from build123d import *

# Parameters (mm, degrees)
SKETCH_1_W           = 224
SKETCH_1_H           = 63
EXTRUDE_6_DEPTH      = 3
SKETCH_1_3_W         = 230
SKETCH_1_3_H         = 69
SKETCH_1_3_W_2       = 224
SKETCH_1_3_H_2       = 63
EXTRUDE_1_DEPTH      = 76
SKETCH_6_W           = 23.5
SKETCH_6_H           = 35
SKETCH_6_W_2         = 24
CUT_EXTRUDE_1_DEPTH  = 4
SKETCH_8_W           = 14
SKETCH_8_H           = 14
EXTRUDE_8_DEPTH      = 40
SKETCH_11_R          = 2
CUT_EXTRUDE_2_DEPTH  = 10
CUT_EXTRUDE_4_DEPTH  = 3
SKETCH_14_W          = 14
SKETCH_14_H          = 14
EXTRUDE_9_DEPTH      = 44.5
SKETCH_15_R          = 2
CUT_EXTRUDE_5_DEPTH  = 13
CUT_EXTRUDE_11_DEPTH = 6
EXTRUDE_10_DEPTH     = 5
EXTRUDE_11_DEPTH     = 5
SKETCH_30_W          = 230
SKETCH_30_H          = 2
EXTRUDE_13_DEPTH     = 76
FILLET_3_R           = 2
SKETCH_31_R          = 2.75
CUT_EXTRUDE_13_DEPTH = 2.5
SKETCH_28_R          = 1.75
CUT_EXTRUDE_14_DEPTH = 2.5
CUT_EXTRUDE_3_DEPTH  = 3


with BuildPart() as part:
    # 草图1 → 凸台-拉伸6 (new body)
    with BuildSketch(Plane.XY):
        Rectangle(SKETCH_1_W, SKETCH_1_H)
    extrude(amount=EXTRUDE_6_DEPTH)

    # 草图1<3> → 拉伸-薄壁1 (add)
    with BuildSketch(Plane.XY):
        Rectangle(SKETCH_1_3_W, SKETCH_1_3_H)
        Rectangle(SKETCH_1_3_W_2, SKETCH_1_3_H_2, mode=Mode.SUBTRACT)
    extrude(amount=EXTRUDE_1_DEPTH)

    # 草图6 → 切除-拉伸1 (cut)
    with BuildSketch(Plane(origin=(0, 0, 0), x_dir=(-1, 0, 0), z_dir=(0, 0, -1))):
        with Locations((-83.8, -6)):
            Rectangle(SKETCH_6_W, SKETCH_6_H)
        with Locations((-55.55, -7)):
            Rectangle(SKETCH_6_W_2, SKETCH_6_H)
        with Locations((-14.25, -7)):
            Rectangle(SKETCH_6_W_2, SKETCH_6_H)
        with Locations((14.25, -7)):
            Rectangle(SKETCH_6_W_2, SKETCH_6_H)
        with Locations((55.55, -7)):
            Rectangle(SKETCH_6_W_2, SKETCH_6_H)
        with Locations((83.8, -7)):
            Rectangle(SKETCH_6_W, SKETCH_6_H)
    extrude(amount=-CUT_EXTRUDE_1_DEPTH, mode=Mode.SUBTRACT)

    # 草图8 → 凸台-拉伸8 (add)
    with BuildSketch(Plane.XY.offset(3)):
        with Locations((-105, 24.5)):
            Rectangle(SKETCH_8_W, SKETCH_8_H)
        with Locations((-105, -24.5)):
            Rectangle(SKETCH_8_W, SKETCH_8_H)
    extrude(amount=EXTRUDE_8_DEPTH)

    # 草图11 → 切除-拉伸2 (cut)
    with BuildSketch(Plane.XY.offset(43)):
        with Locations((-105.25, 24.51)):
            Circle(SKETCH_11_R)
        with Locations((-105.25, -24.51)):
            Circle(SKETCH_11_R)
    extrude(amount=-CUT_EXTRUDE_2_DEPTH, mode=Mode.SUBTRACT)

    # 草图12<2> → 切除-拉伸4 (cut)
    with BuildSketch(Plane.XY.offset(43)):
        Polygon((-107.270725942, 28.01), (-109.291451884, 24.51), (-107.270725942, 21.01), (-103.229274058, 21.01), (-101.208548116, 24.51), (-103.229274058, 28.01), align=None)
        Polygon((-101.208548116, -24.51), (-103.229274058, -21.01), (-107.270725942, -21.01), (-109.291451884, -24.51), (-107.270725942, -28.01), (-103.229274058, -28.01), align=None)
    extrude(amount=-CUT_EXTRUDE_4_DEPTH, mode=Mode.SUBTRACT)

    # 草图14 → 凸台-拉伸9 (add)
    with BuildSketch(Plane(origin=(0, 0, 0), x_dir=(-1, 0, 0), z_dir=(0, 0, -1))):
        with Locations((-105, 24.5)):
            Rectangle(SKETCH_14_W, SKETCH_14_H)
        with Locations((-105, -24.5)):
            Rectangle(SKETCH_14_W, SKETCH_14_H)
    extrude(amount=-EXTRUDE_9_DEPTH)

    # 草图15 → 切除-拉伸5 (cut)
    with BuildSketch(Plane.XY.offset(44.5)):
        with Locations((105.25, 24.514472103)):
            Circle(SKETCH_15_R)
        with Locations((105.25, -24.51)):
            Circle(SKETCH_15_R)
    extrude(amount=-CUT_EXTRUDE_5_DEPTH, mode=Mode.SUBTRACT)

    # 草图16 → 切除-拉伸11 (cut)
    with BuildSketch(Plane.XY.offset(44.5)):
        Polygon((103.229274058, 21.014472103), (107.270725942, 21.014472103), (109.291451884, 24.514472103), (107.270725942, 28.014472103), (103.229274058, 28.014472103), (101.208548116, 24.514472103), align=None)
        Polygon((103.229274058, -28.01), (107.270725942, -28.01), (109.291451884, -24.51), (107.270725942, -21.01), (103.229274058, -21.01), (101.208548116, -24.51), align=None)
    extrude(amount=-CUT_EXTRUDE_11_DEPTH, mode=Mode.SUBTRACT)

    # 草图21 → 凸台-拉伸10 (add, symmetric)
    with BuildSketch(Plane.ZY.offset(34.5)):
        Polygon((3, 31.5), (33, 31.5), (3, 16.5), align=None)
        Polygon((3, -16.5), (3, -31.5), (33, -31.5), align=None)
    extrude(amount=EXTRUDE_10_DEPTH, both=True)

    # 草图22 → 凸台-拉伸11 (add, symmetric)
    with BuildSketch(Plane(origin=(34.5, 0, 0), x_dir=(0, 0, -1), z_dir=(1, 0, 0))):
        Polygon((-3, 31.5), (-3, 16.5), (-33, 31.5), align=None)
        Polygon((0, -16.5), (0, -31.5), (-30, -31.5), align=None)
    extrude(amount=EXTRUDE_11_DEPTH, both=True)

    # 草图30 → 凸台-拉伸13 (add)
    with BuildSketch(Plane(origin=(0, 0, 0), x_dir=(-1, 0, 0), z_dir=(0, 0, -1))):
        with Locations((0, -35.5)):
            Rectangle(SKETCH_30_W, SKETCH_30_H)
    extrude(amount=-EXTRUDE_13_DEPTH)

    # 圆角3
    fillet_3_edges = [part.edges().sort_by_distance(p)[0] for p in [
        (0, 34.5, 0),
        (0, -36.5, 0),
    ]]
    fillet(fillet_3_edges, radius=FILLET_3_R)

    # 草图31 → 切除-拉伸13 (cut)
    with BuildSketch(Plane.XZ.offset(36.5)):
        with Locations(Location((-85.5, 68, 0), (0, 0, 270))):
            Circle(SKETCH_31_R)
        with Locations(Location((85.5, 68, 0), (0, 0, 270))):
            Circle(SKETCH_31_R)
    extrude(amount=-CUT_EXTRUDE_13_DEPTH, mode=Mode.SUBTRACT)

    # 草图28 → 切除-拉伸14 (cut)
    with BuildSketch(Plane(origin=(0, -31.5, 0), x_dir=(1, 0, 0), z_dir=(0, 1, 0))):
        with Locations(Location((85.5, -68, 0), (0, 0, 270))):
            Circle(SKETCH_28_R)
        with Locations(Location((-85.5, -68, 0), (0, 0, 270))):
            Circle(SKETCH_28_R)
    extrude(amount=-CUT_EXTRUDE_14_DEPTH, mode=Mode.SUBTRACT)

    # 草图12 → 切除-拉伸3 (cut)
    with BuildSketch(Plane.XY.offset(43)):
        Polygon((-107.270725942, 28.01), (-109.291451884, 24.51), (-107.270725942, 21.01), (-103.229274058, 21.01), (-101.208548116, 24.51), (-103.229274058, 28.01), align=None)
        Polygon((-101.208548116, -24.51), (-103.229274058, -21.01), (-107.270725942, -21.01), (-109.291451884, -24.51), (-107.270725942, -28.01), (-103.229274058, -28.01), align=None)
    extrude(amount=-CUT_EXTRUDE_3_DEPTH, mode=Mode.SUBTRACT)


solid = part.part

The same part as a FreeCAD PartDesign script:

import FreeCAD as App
import Part
import Sketcher
from FreeCAD import Vector
Q = App.Units.Quantity


def edges_at(feature, points):
    """Names of the edges that pass closest to the given points."""
    edges = feature.Shape.Edges
    near = lambda p: min(range(len(edges)), key=lambda i: edges[i].distToShape(Part.Vertex(*p))[0])
    return sorted({f"Edge{near(p) + 1}" for p in points})


def add_polygon(sketch, points):
    """Adds a closed chain of lines whose ends are joined by coincident constraints."""
    first, n = sketch.GeometryCount, len(points)
    for a, b in zip(points, points[1:] + points[:1]):
        sketch.addGeometry(Part.LineSegment(App.Vector(*a, 0), App.Vector(*b, 0)), False)
    for i in range(n):
        sketch.addConstraint(Sketcher.Constraint("Coincident", first + i, 2, first + (i + 1) % n, 1))

doc = App.newDocument("Part")
body = doc.addObject("PartDesign::Body", "Body")

# Sketch on XY plane
sketch1 = doc.addObject("Sketcher::SketchObject", "Sketch")
body.addObject(sketch1)
sketch1.AttachmentSupport = (doc.XY_Plane, [""])
sketch1.MapMode = "FlatFace"
add_polygon(sketch1, [(-112, 32), (-112, -32), (112, -32), (112, 32)])  # lines 0-3
sketch1.addConstraint(Sketcher.Constraint("Vertical", 0))
sketch1.addConstraint(Sketcher.Constraint("Horizontal", 1))
sketch1.addConstraint(Sketcher.Constraint("Vertical", 2))
sketch1.addConstraint(Sketcher.Constraint("Horizontal", 3))
sketch1.addConstraint(Sketcher.Constraint("Symmetric", 0, 2, 2, 2, -1, 1))
sketch1.addConstraint(Sketcher.Constraint("DistanceX", 1, 1, 1, 2, 224.0))
sketch1.addConstraint(Sketcher.Constraint("DistanceY", 0, 2, 0, 1, 63.0))
pad1 = doc.addObject("PartDesign::Pad", "Pad")
body.addObject(pad1)
pad1.Profile = sketch1
pad1.Length = 3

# Sketch on XY plane
sketch2 = doc.addObject("Sketcher::SketchObject", "Sketch001")
body.addObject(sketch2)
sketch2.AttachmentSupport = (doc.XY_Plane, [""])
sketch2.MapMode = "FlatFace"
add_polygon(sketch2, [(-115, 34), (-115, -34), (115, -34), (115, 34)])  # lines 0-3
add_polygon(sketch2, [(112, -32), (-112, -32), (-112, 32), (112, 32)])  # lines 4-7
sketch2.addConstraint(Sketcher.Constraint("Vertical", 0))
sketch2.addConstraint(Sketcher.Constraint("Horizontal", 1))
sketch2.addConstraint(Sketcher.Constraint("Vertical", 2))
sketch2.addConstraint(Sketcher.Constraint("Horizontal", 3))
sketch2.addConstraint(Sketcher.Constraint("Horizontal", 4))
sketch2.addConstraint(Sketcher.Constraint("Vertical", 5))
sketch2.addConstraint(Sketcher.Constraint("Horizontal", 6))
sketch2.addConstraint(Sketcher.Constraint("Vertical", 7))
sketch2.addConstraint(Sketcher.Constraint("Symmetric", 0, 2, 2, 2, -1, 1))
sketch2.addConstraint(Sketcher.Constraint("Symmetric", 4, 2, 6, 2, -1, 1))
sketch2.addConstraint(Sketcher.Constraint("DistanceX", 1, 1, 1, 2, 230.0))
sketch2.addConstraint(Sketcher.Constraint("DistanceX", 4, 2, 4, 1, 224.0))
sketch2.addConstraint(Sketcher.Constraint("DistanceY", 0, 2, 0, 1, 69.0))
sketch2.addConstraint(Sketcher.Constraint("DistanceY", 5, 1, 5, 2, 63.0))
pad2 = doc.addObject("PartDesign::Pad", "Pad001")
body.addObject(pad2)
pad2.Profile = sketch2
pad2.Length = 76

# Sketch on XY plane
sketch3 = doc.addObject("Sketcher::SketchObject", "Sketch002")
body.addObject(sketch3)
sketch3.AttachmentSupport = (doc.XY_Plane, [""])
sketch3.MapMode = "FlatFace"
add_polygon(sketch3, [(96, 12), (96, -24), (72, -24), (72, 12)])  # lines 0-3
add_polygon(sketch3, [(68, 10), (68, -24), (44, -24), (44, 10)])  # lines 4-7
add_polygon(sketch3, [(26, 10), (26, -24), (2, -24), (2, 10)])  # lines 8-11
add_polygon(sketch3, [(-2, 10), (-2, -24), (-26, -24), (-26, 10)])  # lines 12-15
add_polygon(sketch3, [(-44, 10), (-44, -24), (-68, -24), (-68, 10)])  # lines 16-19
add_polygon(sketch3, [(-72, 10), (-72, -24), (-96, -24), (-96, 10)])  # lines 20-23
sketch3.addConstraint(Sketcher.Constraint("Vertical", 0))
sketch3.addConstraint(Sketcher.Constraint("Horizontal", 1))
sketch3.addConstraint(Sketcher.Constraint("Vertical", 2))
sketch3.addConstraint(Sketcher.Constraint("Horizontal", 3))
sketch3.addConstraint(Sketcher.Constraint("Vertical", 4))
sketch3.addConstraint(Sketcher.Constraint("Horizontal", 5))
sketch3.addConstraint(Sketcher.Constraint("Vertical", 6))
sketch3.addConstraint(Sketcher.Constraint("Horizontal", 7))
sketch3.addConstraint(Sketcher.Constraint("Vertical", 8))
sketch3.addConstraint(Sketcher.Constraint("Horizontal", 9))
sketch3.addConstraint(Sketcher.Constraint("Vertical", 10))
sketch3.addConstraint(Sketcher.Constraint("Horizontal", 11))
sketch3.addConstraint(Sketcher.Constraint("Vertical", 12))
sketch3.addConstraint(Sketcher.Constraint("Horizontal", 13))
sketch3.addConstraint(Sketcher.Constraint("Vertical", 14))
sketch3.addConstraint(Sketcher.Constraint("Horizontal", 15))
sketch3.addConstraint(Sketcher.Constraint("Vertical", 16))
sketch3.addConstraint(Sketcher.Constraint("Horizontal", 17))
sketch3.addConstraint(Sketcher.Constraint("Vertical", 18))
sketch3.addConstraint(Sketcher.Constraint("Horizontal", 19))
sketch3.addConstraint(Sketcher.Constraint("Vertical", 20))
sketch3.addConstraint(Sketcher.Constraint("Horizontal", 21))
sketch3.addConstraint(Sketcher.Constraint("Vertical", 22))
sketch3.addConstraint(Sketcher.Constraint("Horizontal", 23))
sketch3.addConstraint(Sketcher.Constraint("Symmetric", 9, 2, 12, 2, -2))
sketch3.addConstraint(Sketcher.Constraint("Symmetric", 11, 2, 14, 2, -2))
sketch3.addConstraint(Sketcher.Constraint("Symmetric", 5, 2, 16, 2, -2))
sketch3.addConstraint(Sketcher.Constraint("Symmetric", 7, 2, 18, 2, -2))
sketch3.addConstraint(Sketcher.Constraint("Horizontal", 5, 2, 8, 2))
sketch3.addConstraint(Sketcher.Constraint("Horizontal", 7, 2, 10, 2))
sketch3.addConstraint(Sketcher.Constraint("Horizontal", 17, 2, 20, 2))
sketch3.addConstraint(Sketcher.Constraint("Horizontal", 19, 2, 22, 2))
sketch3.addConstraint(Sketcher.Constraint("Equal", 7, 9))
sketch3.addConstraint(Sketcher.Constraint("Equal", 3, 21))
sketch3.addConstraint(Sketcher.Constraint("Equal", 2, 4))
sketch3.addConstraint(Sketcher.Constraint("DistanceX", 5, 2, 5, 1, 24.0))
sketch3.addConstraint(Sketcher.Constraint("DistanceY", 0, 2, 0, 1, 35.0))
sketch3.addConstraint(Sketcher.Constraint("DistanceX", 1, 2, 1, 1, 23.5))
sketch3.addConstraint(Sketcher.Constraint("DistanceY", 4, 2, 1, 2, 1.0))
sketch3.addConstraint(Sketcher.Constraint("DistanceX", 4, 2, 0, 2, 28.0))
sketch3.addConstraint(Sketcher.Constraint("DistanceX", 21, 2, 17, 2, 28.0))
sketch3.addConstraint(Sketcher.Constraint("DistanceY", 0, 2, -1, 1, 23.5))
sketch3.addConstraint(Sketcher.Constraint("DistanceX", 8, 2, 5, 2, 17.3))
sketch3.addConstraint(Sketcher.Constraint("DistanceX", 12, 2, 9, 2, 4.5))
pocket1 = doc.addObject("PartDesign::Pocket", "Pocket")
body.addObject(pocket1)
pocket1.Profile = sketch3
pocket1.Length = 4
pocket1.Reversed = True

# Sketch on XY plane
sketch4 = doc.addObject("Sketcher::SketchObject", "Sketch003")
body.addObject(sketch4)
sketch4.AttachmentSupport = (doc.XY_Plane, [""])
sketch4.MapMode = "FlatFace"
sketch4.AttachmentOffset = App.Placement(Vector(0, 0, 3), App.Rotation())
add_polygon(sketch4, [(-112, 32), (-112, 18), (-98, 18), (-98, 32)])  # lines 0-3
add_polygon(sketch4, [(-112, -18), (-112, -32), (-98, -32), (-98, -18)])  # lines 4-7
sketch4.addConstraint(Sketcher.Constraint("Vertical", 0))
sketch4.addConstraint(Sketcher.Constraint("Horizontal", 1))
sketch4.addConstraint(Sketcher.Constraint("Vertical", 2))
sketch4.addConstraint(Sketcher.Constraint("Horizontal", 3))
sketch4.addConstraint(Sketcher.Constraint("Vertical", 4))
sketch4.addConstraint(Sketcher.Constraint("Horizontal", 5))
sketch4.addConstraint(Sketcher.Constraint("Vertical", 6))
sketch4.addConstraint(Sketcher.Constraint("Horizontal", 7))
sketch4.addConstraint(Sketcher.Constraint("Symmetric", 3, 2, 4, 2, -1))
sketch4.addConstraint(Sketcher.Constraint("Symmetric", 1, 2, 6, 2, -1))
sketch4.addConstraint(Sketcher.Constraint("Equal", 7, 0))
sketch4.addConstraint(Sketcher.Constraint("DistanceX", 1, 1, 1, 2, 14.0))
sketch4.addConstraint(Sketcher.Constraint("DistanceX", 0, 2, -1, 1, 112.0))
sketch4.addConstraint(Sketcher.Constraint("DistanceY", 4, 2, 0, 2, 49.0))
pad3 = doc.addObject("PartDesign::Pad", "Pad002")
body.addObject(pad3)
pad3.Profile = sketch4
pad3.Length = 40

# Sketch on XY plane
sketch5 = doc.addObject("Sketcher::SketchObject", "Sketch004")
body.addObject(sketch5)
sketch5.AttachmentSupport = (doc.XY_Plane, [""])
sketch5.MapMode = "FlatFace"
sketch5.AttachmentOffset = App.Placement(Vector(0, 0, 43), App.Rotation())
sketch5.addGeometry(Part.Circle(Vector(-105.2, 24.5, 0), Vector(0, 0, 1), 2), False)
sketch5.addGeometry(Part.Circle(Vector(-105.2, -24.5, 0), Vector(0, 0, 1), 2), False)
sketch5.addConstraint(Sketcher.Constraint("Equal", 0, 1))
sketch5.addConstraint(Sketcher.Constraint("Symmetric", 0, 3, 1, 3, -1))
sketch5.addConstraint(Sketcher.Constraint("Diameter", 0, 4.0))
sketch5.addConstraint(Sketcher.Constraint("DistanceX", 0, 3, -1, 1, 105.25))
sketch5.addConstraint(Sketcher.Constraint("DistanceY", -1, 1, 0, 3, 24.51))
pocket2 = doc.addObject("PartDesign::Pocket", "Pocket001")
body.addObject(pocket2)
pocket2.Profile = sketch5
pocket2.Length = 10

# Sketch on XY plane
sketch6 = doc.addObject("Sketcher::SketchObject", "Sketch005")
body.addObject(sketch6)
sketch6.AttachmentSupport = (doc.XY_Plane, [""])
sketch6.MapMode = "FlatFace"
sketch6.AttachmentOffset = App.Placement(Vector(0, 0, 43), App.Rotation())
add_polygon(sketch6, [(-107.3, 28), (-109.3, 24.5), (-107.3, 21), (-103.2, 21), (-101.2, 24.5), (-103.2, 28)])  # lines 0-5
add_polygon(sketch6, [(-101.2, -24.5), (-103.2, -21), (-107.3, -21), (-109.3, -24.5), (-107.3, -28), (-103.2, -28)])  # lines 6-11
sketch6.addConstraint(Sketcher.Constraint("Horizontal", 2))
sketch6.addConstraint(Sketcher.Constraint("Horizontal", 5))
sketch6.addConstraint(Sketcher.Constraint("Horizontal", 7))
sketch6.addConstraint(Sketcher.Constraint("Horizontal", 10))
sketch6.addConstraint(Sketcher.Constraint("Symmetric", 2, 2, 6, 2, -1))
sketch6.addConstraint(Sketcher.Constraint("Symmetric", 0, 2, 8, 2, -1))
sketch6.addConstraint(Sketcher.Constraint("Symmetric", 5, 2, 9, 2, -1))
sketch6.addConstraint(Sketcher.Constraint("Symmetric", 3, 2, 11, 2, -1))
sketch6.addConstraint(Sketcher.Constraint("Parallel", 0, 3))
sketch6.addConstraint(Sketcher.Constraint("Parallel", 1, 4))
sketch6.addConstraint(Sketcher.Constraint("Parallel", 4, 6))
sketch6.addConstraint(Sketcher.Constraint("Parallel", 3, 8))
sketch6.addConstraint(Sketcher.Constraint("Parallel", 8, 11))
sketch6.addConstraint(Sketcher.Constraint("Horizontal", 0, 2, 3, 2))
sketch6.addConstraint(Sketcher.Constraint("Vertical", 2, 2, 4, 2))
sketch6.addConstraint(Sketcher.Constraint("Angle", 0, Q("-120 deg")))
sketch6.addConstraint(Sketcher.Constraint("DistanceY", 2, 2, 4, 2, 7.0))
sketch6.addConstraint(Sketcher.Constraint("DistanceY", -1, 1, 0, 2, 24.51))
sketch6.addConstraint(Sketcher.Constraint("DistanceX", 2, 1, 2, 2, 4.041452))
sketch6.addConstraint(Sketcher.Constraint("DistanceX", 0, 2, -1, 1, 109.291452))
pocket3 = doc.addObject("PartDesign::Pocket", "Pocket002")
body.addObject(pocket3)
pocket3.Profile = sketch6
pocket3.Length = 3

# Sketch on XY plane
sketch7 = doc.addObject("Sketcher::SketchObject", "Sketch006")
body.addObject(sketch7)
sketch7.AttachmentSupport = (doc.XY_Plane, [""])
sketch7.MapMode = "FlatFace"
add_polygon(sketch7, [(112, 32), (112, 18), (98, 18), (98, 32)])  # lines 0-3
add_polygon(sketch7, [(112, -18), (112, -32), (98, -32), (98, -18)])  # lines 4-7
sketch7.addConstraint(Sketcher.Constraint("Vertical", 0))
sketch7.addConstraint(Sketcher.Constraint("Horizontal", 1))
sketch7.addConstraint(Sketcher.Constraint("Vertical", 2))
sketch7.addConstraint(Sketcher.Constraint("Horizontal", 3))
sketch7.addConstraint(Sketcher.Constraint("Vertical", 4))
sketch7.addConstraint(Sketcher.Constraint("Horizontal", 5))
sketch7.addConstraint(Sketcher.Constraint("Vertical", 6))
sketch7.addConstraint(Sketcher.Constraint("Horizontal", 7))
sketch7.addConstraint(Sketcher.Constraint("Symmetric", 3, 2, 4, 2, -1))
sketch7.addConstraint(Sketcher.Constraint("Symmetric", 1, 2, 6, 2, -1))
sketch7.addConstraint(Sketcher.Constraint("Equal", 7, 0))
sketch7.addConstraint(Sketcher.Constraint("DistanceX", 1, 2, 1, 1, 14.0))
sketch7.addConstraint(Sketcher.Constraint("DistanceX", -1, 1, 0, 2, 112.0))
sketch7.addConstraint(Sketcher.Constraint("DistanceY", 4, 2, 0, 2, 49.0))
pad4 = doc.addObject("PartDesign::Pad", "Pad003")
body.addObject(pad4)
pad4.Profile = sketch7
pad4.Length = 44.5

# Sketch on XY plane
sketch8 = doc.addObject("Sketcher::SketchObject", "Sketch007")
body.addObject(sketch8)
sketch8.AttachmentSupport = (doc.XY_Plane, [""])
sketch8.MapMode = "FlatFace"
sketch8.AttachmentOffset = App.Placement(Vector(0, 0, 44.5), App.Rotation())
sketch8.addGeometry(Part.Circle(Vector(105.2, 24.5, 0), Vector(0, 0, 1), 2), False)
sketch8.addGeometry(Part.Circle(Vector(105.2, -24.5, 0), Vector(0, 0, 1), 2), False)
sketch8.addConstraint(Sketcher.Constraint("Equal", 0, 1))
sketch8.addConstraint(Sketcher.Constraint("Vertical", 0, 3, 1, 3))
sketch8.addConstraint(Sketcher.Constraint("Diameter", 0, 4.0))
sketch8.addConstraint(Sketcher.Constraint("DistanceX", -1, 1, 0, 3, 105.25))
sketch8.addConstraint(Sketcher.Constraint("DistanceY", 1, 3, -1, 1, 24.51))
sketch8.addConstraint(Sketcher.Constraint("DistanceY", -1, 1, 0, 3, 24.514472))
pocket4 = doc.addObject("PartDesign::Pocket", "Pocket003")
body.addObject(pocket4)
pocket4.Profile = sketch8
pocket4.Length = 13

# Sketch on XY plane
sketch9 = doc.addObject("Sketcher::SketchObject", "Sketch008")
body.addObject(sketch9)
sketch9.AttachmentSupport = (doc.XY_Plane, [""])
sketch9.MapMode = "FlatFace"
sketch9.AttachmentOffset = App.Placement(Vector(0, 0, 44.5), App.Rotation())
add_polygon(sketch9, [(103.2, 21), (107.3, 21), (109.3, 24.5), (107.3, 28), (103.2, 28), (101.2, 24.5)])  # lines 0-5
add_polygon(sketch9, [(103.2, -28), (107.3, -28), (109.3, -24.5), (107.3, -21), (103.2, -21), (101.2, -24.5)])  # lines 6-11
sketch9.addConstraint(Sketcher.Constraint("Horizontal", 0))
sketch9.addConstraint(Sketcher.Constraint("Horizontal", 3))
sketch9.addConstraint(Sketcher.Constraint("Horizontal", 6))
sketch9.addConstraint(Sketcher.Constraint("Horizontal", 9))
sketch9.addConstraint(Sketcher.Constraint("Parallel", 1, 4))
sketch9.addConstraint(Sketcher.Constraint("Parallel", 2, 5))
sketch9.addConstraint(Sketcher.Constraint("Parallel", 4, 7))
sketch9.addConstraint(Sketcher.Constraint("Parallel", 5, 8))
sketch9.addConstraint(Sketcher.Constraint("Parallel", 7, 10))
sketch9.addConstraint(Sketcher.Constraint("Parallel", 8, 11))
sketch9.addConstraint(Sketcher.Constraint("Horizontal", 1, 2, 4, 2))
sketch9.addConstraint(Sketcher.Constraint("Horizontal", 7, 2, 10, 2))
sketch9.addConstraint(Sketcher.Constraint("Vertical", 0, 2, 2, 2))
sketch9.addConstraint(Sketcher.Constraint("Vertical", 3, 2, 5, 2))
sketch9.addConstraint(Sketcher.Constraint("Vertical", 2, 2, 6, 2))
sketch9.addConstraint(Sketcher.Constraint("Vertical", 1, 2, 7, 2))
sketch9.addConstraint(Sketcher.Constraint("Vertical", 6, 2, 8, 2))
sketch9.addConstraint(Sketcher.Constraint("Vertical", 5, 2, 9, 2))
sketch9.addConstraint(Sketcher.Constraint("Angle", 1, Q("60 deg")))
sketch9.addConstraint(Sketcher.Constraint("DistanceY", 0, 2, 2, 2, 7.0))
sketch9.addConstraint(Sketcher.Constraint("DistanceY", 6, 2, -1, 1, 28.01))
sketch9.addConstraint(Sketcher.Constraint("DistanceX", 0, 1, 0, 2, 4.041452))
sketch9.addConstraint(Sketcher.Constraint("DistanceX", -1, 1, 1, 2, 109.291452))
sketch9.addConstraint(Sketcher.Constraint("DistanceY", -1, 1, 0, 2, 21.014472))
pocket5 = doc.addObject("PartDesign::Pocket", "Pocket004")
body.addObject(pocket5)
pocket5.Profile = sketch9
pocket5.Length = 6

# Sketch on YZ plane
sketch10 = doc.addObject("Sketcher::SketchObject", "Sketch009")
body.addObject(sketch10)
sketch10.AttachmentSupport = (doc.YZ_Plane, [""])
sketch10.MapMode = "FlatFace"
sketch10.AttachmentOffset = App.Placement(Vector(0, 0, -34.5), App.Rotation())
add_polygon(sketch10, [(32, 33), (32, 3), (16, 3)])  # lines 0-2
add_polygon(sketch10, [(-16, 3), (-32, 3), (-32, 33)])  # lines 3-5
sketch10.addConstraint(Sketcher.Constraint("Vertical", 0))
sketch10.addConstraint(Sketcher.Constraint("Horizontal", 1))
sketch10.addConstraint(Sketcher.Constraint("Horizontal", 3))
sketch10.addConstraint(Sketcher.Constraint("Vertical", 4))
sketch10.addConstraint(Sketcher.Constraint("Symmetric", 0, 2, 3, 2, -2))
sketch10.addConstraint(Sketcher.Constraint("Horizontal", 2, 2, 4, 2))
sketch10.addConstraint(Sketcher.Constraint("Equal", 1, 3))
sketch10.addConstraint(Sketcher.Constraint("DistanceX", 1, 2, 1, 1, 15.0))
sketch10.addConstraint(Sketcher.Constraint("DistanceY", 0, 2, 0, 1, 30.0))
sketch10.addConstraint(Sketcher.Constraint("DistanceY", -1, 1, 0, 2, 3.0))
sketch10.addConstraint(Sketcher.Constraint("DistanceX", 3, 2, 1, 2, 48.0))
pad5 = doc.addObject("PartDesign::Pad", "Pad004")
body.addObject(pad5)
pad5.Profile = sketch10
pad5.Length = 10
pad5.Midplane = True

# Sketch on YZ plane
sketch11 = doc.addObject("Sketcher::SketchObject", "Sketch010")
body.addObject(sketch11)
sketch11.AttachmentSupport = (doc.YZ_Plane, [""])
sketch11.MapMode = "FlatFace"
sketch11.AttachmentOffset = App.Placement(Vector(0, 0, 34.5), App.Rotation())
add_polygon(sketch11, [(16, 3), (32, 3), (32, 33)])  # lines 0-2
add_polygon(sketch11, [(-32, 0), (-16, 0), (-32, 30)])  # lines 3-5
sketch11.addConstraint(Sketcher.Constraint("Horizontal", 0))
sketch11.addConstraint(Sketcher.Constraint("Vertical", 1))
sketch11.addConstraint(Sketcher.Constraint("Horizontal", 3))
sketch11.addConstraint(Sketcher.Constraint("Vertical", 5))
sketch11.addConstraint(Sketcher.Constraint("PointOnObject", 3, 2, -1))
sketch11.addConstraint(Sketcher.Constraint("Equal", 0, 3))
sketch11.addConstraint(Sketcher.Constraint("Equal", 1, 5))
sketch11.addConstraint(Sketcher.Constraint("DistanceX", 0, 1, 0, 2, 15.0))
sketch11.addConstraint(Sketcher.Constraint("DistanceY", 1, 1, 1, 2, 30.0))
sketch11.addConstraint(Sketcher.Constraint("DistanceY", -1, 1, 0, 2, 3.0))
sketch11.addConstraint(Sketcher.Constraint("DistanceX", 3, 2, 2, 2, 33.0))
sketch11.addConstraint(Sketcher.Constraint("DistanceX", -1, 1, 0, 2, 31.5))
pad6 = doc.addObject("PartDesign::Pad", "Pad005")
body.addObject(pad6)
pad6.Profile = sketch11
pad6.Length = 10
pad6.Midplane = True

# Sketch on XY plane
sketch12 = doc.addObject("Sketcher::SketchObject", "Sketch011")
body.addObject(sketch12)
sketch12.AttachmentSupport = (doc.XY_Plane, [""])
sketch12.MapMode = "FlatFace"
add_polygon(sketch12, [(115, -34.5), (115, -36.5), (-115, -36.5), (-115, -34.5)])  # lines 0-3
sketch12.addConstraint(Sketcher.Constraint("Vertical", 0))
sketch12.addConstraint(Sketcher.Constraint("Horizontal", 1))
sketch12.addConstraint(Sketcher.Constraint("Vertical", 2))
sketch12.addConstraint(Sketcher.Constraint("Horizontal", 3))
sketch12.addConstraint(Sketcher.Constraint("DistanceX", 1, 2, 1, 1, 230.0))
sketch12.addConstraint(Sketcher.Constraint("DistanceY", 0, 2, 0, 1, 2.0))
sketch12.addConstraint(Sketcher.Constraint("DistanceX", -1, 1, 0, 2, 115.0))
sketch12.addConstraint(Sketcher.Constraint("DistanceY", 0, 2, -1, 1, 36.5))
pad7 = doc.addObject("PartDesign::Pad", "Pad006")
body.addObject(pad7)
pad7.Profile = sketch12
pad7.Length = 76
doc.recompute()

fillet = doc.addObject("PartDesign::Fillet", "Fillet")
body.addObject(fillet)
fillet.Base = (pad7, edges_at(pad7, [(0, 34.5, 0), (0, -36.5, 0)]))
fillet.Radius = 2

# Sketch on XZ plane
sketch13 = doc.addObject("Sketcher::SketchObject", "Sketch012")
body.addObject(sketch13)
sketch13.AttachmentSupport = (doc.XZ_Plane, [""])
sketch13.MapMode = "FlatFace"
sketch13.AttachmentOffset = App.Placement(Vector(0, 0, 36.5), App.Rotation())
sketch13.addGeometry(Part.Circle(Vector(-85.5, 68, 0), Vector(0, 0, 1), 2.8), False)
sketch13.addGeometry(Part.Circle(Vector(85.5, 68, 0), Vector(0, 0, 1), 2.8), False)
sketch13.addConstraint(Sketcher.Constraint("Equal", 0, 1))
sketch13.addConstraint(Sketcher.Constraint("Symmetric", 0, 3, 1, 3, -2))
sketch13.addConstraint(Sketcher.Constraint("Diameter", 0, 5.5))
sketch13.addConstraint(Sketcher.Constraint("DistanceY", -1, 1, 0, 3, 68.0))
sketch13.addConstraint(Sketcher.Constraint("DistanceX", 0, 3, 1, 3, 171.0))
pocket6 = doc.addObject("PartDesign::Pocket", "Pocket005")
body.addObject(pocket6)
pocket6.Profile = sketch13
pocket6.Length = 2.5

# Sketch on XZ plane
sketch14 = doc.addObject("Sketcher::SketchObject", "Sketch013")
body.addObject(sketch14)
sketch14.AttachmentSupport = (doc.XZ_Plane, [""])
sketch14.MapMode = "FlatFace"
sketch14.AttachmentOffset = App.Placement(Vector(0, 0, 31.5), App.Rotation())
sketch14.addGeometry(Part.Circle(Vector(85.5, 68, 0), Vector(0, 0, 1), 1.8), False)
sketch14.addGeometry(Part.Circle(Vector(-85.5, 68, 0), Vector(0, 0, 1), 1.8), False)
sketch14.addConstraint(Sketcher.Constraint("Equal", 0, 1))
sketch14.addConstraint(Sketcher.Constraint("Symmetric", 0, 3, 1, 3, -2))
sketch14.addConstraint(Sketcher.Constraint("Diameter", 0, 3.5))
sketch14.addConstraint(Sketcher.Constraint("DistanceY", -1, 1, 0, 3, 68.0))
sketch14.addConstraint(Sketcher.Constraint("DistanceX", 1, 3, 0, 3, 171.0))
pocket7 = doc.addObject("PartDesign::Pocket", "Pocket006")
body.addObject(pocket7)
pocket7.Profile = sketch14
pocket7.Length = 2.5
pocket7.Reversed = True

# Sketch on XY plane
sketch15 = doc.addObject("Sketcher::SketchObject", "Sketch014")
body.addObject(sketch15)
sketch15.AttachmentSupport = (doc.XY_Plane, [""])
sketch15.MapMode = "FlatFace"
sketch15.AttachmentOffset = App.Placement(Vector(0, 0, 43), App.Rotation())
add_polygon(sketch15, [(-107.3, 28), (-109.3, 24.5), (-107.3, 21), (-103.2, 21), (-101.2, 24.5), (-103.2, 28)])  # lines 0-5
add_polygon(sketch15, [(-101.2, -24.5), (-103.2, -21), (-107.3, -21), (-109.3, -24.5), (-107.3, -28), (-103.2, -28)])  # lines 6-11
sketch15.addConstraint(Sketcher.Constraint("Horizontal", 2))
sketch15.addConstraint(Sketcher.Constraint("Horizontal", 5))
sketch15.addConstraint(Sketcher.Constraint("Horizontal", 7))
sketch15.addConstraint(Sketcher.Constraint("Horizontal", 10))
sketch15.addConstraint(Sketcher.Constraint("Symmetric", 2, 2, 6, 2, -1))
sketch15.addConstraint(Sketcher.Constraint("Symmetric", 0, 2, 8, 2, -1))
sketch15.addConstraint(Sketcher.Constraint("Symmetric", 5, 2, 9, 2, -1))
sketch15.addConstraint(Sketcher.Constraint("Symmetric", 3, 2, 11, 2, -1))
sketch15.addConstraint(Sketcher.Constraint("Parallel", 0, 3))
sketch15.addConstraint(Sketcher.Constraint("Parallel", 1, 4))
sketch15.addConstraint(Sketcher.Constraint("Parallel", 4, 6))
sketch15.addConstraint(Sketcher.Constraint("Parallel", 3, 8))
sketch15.addConstraint(Sketcher.Constraint("Parallel", 8, 11))
sketch15.addConstraint(Sketcher.Constraint("Horizontal", 0, 2, 3, 2))
sketch15.addConstraint(Sketcher.Constraint("Vertical", 2, 2, 4, 2))
sketch15.addConstraint(Sketcher.Constraint("Angle", 0, Q("-120 deg")))
sketch15.addConstraint(Sketcher.Constraint("DistanceY", 2, 2, 4, 2, 7.0))
sketch15.addConstraint(Sketcher.Constraint("DistanceY", -1, 1, 0, 2, 24.51))
sketch15.addConstraint(Sketcher.Constraint("DistanceX", 2, 1, 2, 2, 4.041452))
sketch15.addConstraint(Sketcher.Constraint("DistanceX", 0, 2, -1, 1, 109.291452))
pocket8 = doc.addObject("PartDesign::Pocket", "Pocket007")
body.addObject(pocket8)
pocket8.Profile = sketch15
pocket8.Length = 3

doc.recompute()
